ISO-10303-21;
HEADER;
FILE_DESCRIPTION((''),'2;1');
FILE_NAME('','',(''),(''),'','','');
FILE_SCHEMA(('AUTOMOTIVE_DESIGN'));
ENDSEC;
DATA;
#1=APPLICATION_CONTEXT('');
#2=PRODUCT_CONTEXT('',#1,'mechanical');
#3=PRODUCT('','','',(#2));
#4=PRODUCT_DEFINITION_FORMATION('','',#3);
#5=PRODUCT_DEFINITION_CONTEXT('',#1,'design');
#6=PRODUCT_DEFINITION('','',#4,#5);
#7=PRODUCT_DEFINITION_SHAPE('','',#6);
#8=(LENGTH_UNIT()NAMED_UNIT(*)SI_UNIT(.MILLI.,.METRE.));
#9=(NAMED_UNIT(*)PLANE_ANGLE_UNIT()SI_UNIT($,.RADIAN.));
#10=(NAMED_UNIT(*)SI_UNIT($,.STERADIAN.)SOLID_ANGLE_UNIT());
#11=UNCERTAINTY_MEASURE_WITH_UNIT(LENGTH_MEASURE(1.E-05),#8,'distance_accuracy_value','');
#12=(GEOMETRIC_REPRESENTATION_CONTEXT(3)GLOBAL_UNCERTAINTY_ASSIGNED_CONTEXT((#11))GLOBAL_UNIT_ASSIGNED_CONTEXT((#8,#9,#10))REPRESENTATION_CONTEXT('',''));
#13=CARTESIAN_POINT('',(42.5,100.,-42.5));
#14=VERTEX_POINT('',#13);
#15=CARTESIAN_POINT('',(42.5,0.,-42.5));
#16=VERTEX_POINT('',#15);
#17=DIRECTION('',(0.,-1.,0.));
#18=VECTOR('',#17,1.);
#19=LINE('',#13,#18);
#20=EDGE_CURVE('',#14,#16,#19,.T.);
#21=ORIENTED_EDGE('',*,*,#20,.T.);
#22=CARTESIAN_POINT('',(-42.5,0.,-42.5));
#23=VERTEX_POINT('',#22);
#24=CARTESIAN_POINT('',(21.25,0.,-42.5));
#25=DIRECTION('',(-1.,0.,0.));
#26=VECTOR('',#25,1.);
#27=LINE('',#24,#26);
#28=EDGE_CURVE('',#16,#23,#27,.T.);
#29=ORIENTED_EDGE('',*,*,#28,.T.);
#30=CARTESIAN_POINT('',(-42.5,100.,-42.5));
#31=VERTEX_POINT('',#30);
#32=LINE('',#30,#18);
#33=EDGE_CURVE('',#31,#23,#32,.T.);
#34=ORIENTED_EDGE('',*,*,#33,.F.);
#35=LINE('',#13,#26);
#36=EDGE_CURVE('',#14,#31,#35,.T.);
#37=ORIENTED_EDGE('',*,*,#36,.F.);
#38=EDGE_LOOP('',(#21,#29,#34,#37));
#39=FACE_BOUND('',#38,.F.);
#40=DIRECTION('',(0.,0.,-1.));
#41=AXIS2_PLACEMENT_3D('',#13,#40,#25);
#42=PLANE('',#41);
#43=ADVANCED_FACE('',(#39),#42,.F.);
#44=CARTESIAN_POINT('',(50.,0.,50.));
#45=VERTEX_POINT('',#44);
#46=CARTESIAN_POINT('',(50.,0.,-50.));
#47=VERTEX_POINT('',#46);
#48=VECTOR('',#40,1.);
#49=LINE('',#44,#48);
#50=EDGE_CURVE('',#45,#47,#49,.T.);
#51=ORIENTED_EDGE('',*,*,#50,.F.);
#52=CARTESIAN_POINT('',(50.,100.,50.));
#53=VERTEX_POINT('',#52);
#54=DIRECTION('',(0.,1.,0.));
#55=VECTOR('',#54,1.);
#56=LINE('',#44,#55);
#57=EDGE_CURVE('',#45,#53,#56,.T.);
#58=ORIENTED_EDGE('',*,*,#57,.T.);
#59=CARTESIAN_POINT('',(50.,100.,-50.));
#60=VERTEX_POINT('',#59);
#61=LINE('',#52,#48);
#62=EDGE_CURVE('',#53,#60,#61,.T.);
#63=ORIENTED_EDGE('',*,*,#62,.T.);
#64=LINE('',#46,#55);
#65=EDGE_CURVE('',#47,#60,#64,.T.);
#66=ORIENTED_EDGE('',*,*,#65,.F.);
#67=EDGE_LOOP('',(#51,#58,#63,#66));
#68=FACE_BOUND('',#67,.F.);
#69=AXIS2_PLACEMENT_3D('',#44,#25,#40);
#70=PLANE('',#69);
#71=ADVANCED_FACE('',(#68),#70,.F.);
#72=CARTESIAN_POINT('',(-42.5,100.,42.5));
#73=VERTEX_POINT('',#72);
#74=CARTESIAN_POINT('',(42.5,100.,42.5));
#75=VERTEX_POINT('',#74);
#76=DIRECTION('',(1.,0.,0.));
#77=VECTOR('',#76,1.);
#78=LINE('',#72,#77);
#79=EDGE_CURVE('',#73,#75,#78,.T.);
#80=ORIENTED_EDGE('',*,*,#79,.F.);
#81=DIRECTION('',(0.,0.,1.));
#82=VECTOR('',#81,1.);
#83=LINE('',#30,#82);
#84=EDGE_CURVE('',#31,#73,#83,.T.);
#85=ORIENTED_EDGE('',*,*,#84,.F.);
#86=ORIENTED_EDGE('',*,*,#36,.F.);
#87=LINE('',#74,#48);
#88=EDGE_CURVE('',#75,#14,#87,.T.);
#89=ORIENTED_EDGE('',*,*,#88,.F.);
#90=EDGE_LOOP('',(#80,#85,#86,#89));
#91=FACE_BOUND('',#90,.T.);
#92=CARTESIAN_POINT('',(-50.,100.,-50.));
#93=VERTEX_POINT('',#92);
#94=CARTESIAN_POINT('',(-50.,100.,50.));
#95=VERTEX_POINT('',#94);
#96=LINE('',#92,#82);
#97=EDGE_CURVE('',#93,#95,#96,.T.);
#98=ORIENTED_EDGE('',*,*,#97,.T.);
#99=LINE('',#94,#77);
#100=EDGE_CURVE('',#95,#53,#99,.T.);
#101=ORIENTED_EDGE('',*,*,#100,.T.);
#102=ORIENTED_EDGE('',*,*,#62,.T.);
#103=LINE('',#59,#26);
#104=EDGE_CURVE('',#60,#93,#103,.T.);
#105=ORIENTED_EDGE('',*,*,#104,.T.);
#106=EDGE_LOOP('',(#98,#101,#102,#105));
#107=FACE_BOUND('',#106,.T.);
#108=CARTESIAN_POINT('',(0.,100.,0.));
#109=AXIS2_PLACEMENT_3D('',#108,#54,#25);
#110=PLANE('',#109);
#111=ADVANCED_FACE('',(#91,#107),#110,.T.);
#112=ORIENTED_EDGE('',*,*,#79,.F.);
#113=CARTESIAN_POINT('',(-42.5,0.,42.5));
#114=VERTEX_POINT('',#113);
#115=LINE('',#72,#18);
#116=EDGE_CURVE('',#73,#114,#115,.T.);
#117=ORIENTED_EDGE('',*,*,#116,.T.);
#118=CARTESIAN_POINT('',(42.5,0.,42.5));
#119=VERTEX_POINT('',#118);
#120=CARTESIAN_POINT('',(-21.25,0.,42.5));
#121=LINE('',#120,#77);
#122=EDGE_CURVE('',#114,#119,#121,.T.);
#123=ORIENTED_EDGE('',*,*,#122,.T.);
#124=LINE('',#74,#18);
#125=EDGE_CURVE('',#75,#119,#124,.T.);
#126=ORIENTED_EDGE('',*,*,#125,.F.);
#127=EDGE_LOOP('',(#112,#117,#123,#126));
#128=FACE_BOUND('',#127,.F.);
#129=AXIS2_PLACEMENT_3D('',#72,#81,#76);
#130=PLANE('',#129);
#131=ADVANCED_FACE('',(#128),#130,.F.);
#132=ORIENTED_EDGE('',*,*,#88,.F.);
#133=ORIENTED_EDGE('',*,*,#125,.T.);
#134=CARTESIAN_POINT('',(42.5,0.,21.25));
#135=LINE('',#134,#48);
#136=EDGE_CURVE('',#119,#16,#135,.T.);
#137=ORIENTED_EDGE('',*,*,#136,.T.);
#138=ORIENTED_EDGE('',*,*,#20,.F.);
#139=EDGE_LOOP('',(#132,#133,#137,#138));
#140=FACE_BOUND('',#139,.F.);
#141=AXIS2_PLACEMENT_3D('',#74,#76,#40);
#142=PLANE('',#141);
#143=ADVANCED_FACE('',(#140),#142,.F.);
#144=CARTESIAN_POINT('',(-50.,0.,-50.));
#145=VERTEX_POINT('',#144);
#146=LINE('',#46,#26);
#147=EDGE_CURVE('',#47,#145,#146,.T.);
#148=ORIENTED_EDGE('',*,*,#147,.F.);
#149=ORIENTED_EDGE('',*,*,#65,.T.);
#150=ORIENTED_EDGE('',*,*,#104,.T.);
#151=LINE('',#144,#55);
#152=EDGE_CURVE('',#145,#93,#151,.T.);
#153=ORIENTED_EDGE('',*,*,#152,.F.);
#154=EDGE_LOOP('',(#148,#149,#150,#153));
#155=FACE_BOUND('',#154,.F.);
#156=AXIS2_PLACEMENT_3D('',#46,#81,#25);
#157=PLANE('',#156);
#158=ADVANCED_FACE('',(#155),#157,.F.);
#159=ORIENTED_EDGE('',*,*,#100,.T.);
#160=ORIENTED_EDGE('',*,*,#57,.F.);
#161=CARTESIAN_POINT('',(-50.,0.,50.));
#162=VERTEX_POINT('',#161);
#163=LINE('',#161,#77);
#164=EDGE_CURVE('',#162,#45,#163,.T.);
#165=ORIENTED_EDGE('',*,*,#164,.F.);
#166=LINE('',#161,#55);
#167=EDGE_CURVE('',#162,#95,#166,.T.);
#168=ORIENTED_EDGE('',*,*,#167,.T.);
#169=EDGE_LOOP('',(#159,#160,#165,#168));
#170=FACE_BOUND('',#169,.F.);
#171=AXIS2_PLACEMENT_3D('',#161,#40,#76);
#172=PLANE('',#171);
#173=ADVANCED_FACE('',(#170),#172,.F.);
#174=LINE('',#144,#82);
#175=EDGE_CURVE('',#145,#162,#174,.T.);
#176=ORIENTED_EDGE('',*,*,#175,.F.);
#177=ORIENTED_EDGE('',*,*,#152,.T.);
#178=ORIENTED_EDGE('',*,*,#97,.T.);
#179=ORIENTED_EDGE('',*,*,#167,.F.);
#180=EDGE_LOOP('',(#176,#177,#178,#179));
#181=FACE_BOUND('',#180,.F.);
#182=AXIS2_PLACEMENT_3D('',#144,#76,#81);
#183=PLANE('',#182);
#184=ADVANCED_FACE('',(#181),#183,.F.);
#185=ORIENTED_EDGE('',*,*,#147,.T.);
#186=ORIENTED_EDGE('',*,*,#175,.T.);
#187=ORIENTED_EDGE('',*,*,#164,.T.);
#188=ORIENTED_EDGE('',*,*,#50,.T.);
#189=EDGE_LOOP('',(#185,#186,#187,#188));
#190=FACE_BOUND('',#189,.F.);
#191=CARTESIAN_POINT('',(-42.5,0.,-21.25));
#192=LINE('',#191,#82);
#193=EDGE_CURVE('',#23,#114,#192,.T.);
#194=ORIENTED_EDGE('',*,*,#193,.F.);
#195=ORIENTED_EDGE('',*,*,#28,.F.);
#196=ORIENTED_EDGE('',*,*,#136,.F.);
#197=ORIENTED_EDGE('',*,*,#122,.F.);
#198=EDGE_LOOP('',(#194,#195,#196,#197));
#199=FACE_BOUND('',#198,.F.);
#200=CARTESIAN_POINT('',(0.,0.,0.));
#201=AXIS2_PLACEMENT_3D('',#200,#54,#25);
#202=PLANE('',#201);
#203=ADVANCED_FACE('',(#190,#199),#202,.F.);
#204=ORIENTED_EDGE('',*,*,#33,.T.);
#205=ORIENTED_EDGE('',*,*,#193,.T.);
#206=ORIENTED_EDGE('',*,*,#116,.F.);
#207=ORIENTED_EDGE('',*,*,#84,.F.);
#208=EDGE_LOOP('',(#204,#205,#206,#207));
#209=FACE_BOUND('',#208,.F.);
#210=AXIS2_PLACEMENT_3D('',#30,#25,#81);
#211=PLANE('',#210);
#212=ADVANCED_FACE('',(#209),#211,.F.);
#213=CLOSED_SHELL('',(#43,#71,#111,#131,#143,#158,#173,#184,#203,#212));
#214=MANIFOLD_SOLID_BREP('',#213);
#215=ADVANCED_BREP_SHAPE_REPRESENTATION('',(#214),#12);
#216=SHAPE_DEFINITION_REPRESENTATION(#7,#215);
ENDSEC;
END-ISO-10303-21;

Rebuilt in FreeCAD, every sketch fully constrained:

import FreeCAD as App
import Part
import Sketcher

V = App.Vector

doc = App.newDocument("Part")
body = doc.addObject("PartDesign::Body", "Body")

# Sketch on XZ plane
sketch1 = body.newObject("Sketcher::SketchObject", "Sketch")
sketch1.AttachmentSupport = (doc.getObject("XZ_Plane"), [""])
sketch1.MapMode = "FlatFace"
sketch1.addGeometry(Part.LineSegment(V(-50, -50, 0), V(-50, 50, 0)), False)
sketch1.addGeometry(Part.LineSegment(V(-50, 50, 0), V(50, 50, 0)), False)
sketch1.addGeometry(Part.LineSegment(V(50, 50, 0), V(50, -50, 0)), False)
sketch1.addGeometry(Part.LineSegment(V(50, -50, 0), V(-50, -50, 0)), False)
sketch1.addConstraint(Sketcher.Constraint("Coincident", 0, 2, 1, 1))
sketch1.addConstraint(Sketcher.Constraint("Coincident", 1, 2, 2, 1))
sketch1.addConstraint(Sketcher.Constraint("Coincident", 2, 2, 3, 1))
sketch1.addConstraint(Sketcher.Constraint("Coincident", 3, 2, 0, 1))
sketch1.addConstraint(Sketcher.Constraint("Vertical", 0))
sketch1.addConstraint(Sketcher.Constraint("Horizontal", 1))
sketch1.addConstraint(Sketcher.Constraint("Vertical", 2))
sketch1.addConstraint(Sketcher.Constraint("Horizontal", 3))
sketch1.addConstraint(Sketcher.Constraint("Symmetric", 0, 2, 2, 2, -1, 1))
sketch1.addConstraint(Sketcher.Constraint("Equal", 3, 0))
sketch1.addConstraint(Sketcher.Constraint("DistanceX", 1, 1, 1, 2, 100.0))
pad1 = body.newObject("PartDesign::Pad", "Pad")
pad1.Profile = sketch1
pad1.Length = 100
pad1.Reversed = True

# Sketch on XZ plane
sketch2 = body.newObject("Sketcher::SketchObject", "Sketch001")
sketch2.AttachmentSupport = (doc.getObject("XZ_Plane"), [""])
sketch2.MapMode = "FlatFace"
sketch2.AttachmentOffset = App.Placement(V(0, 0, -100), App.Rotation())
sketch2.addGeometry(Part.LineSegment(V(-42, -42, 0), V(-42, 42, 0)), False)
sketch2.addGeometry(Part.LineSegment(V(-42, 42, 0), V(42, 42, 0)), False)
sketch2.addGeometry(Part.LineSegment(V(42, 42, 0), V(42, -42, 0)), False)
sketch2.addGeometry(Part.LineSegment(V(42, -42, 0), V(-42, -42, 0)), False)
sketch2.addConstraint(Sketcher.Constraint("Coincident", 0, 2, 1, 1))
sketch2.addConstraint(Sketcher.Constraint("Coincident", 1, 2, 2, 1))
sketch2.addConstraint(Sketcher.Constraint("Coincident", 2, 2, 3, 1))
sketch2.addConstraint(Sketcher.Constraint("Coincident", 3, 2, 0, 1))
sketch2.addConstraint(Sketcher.Constraint("Vertical", 0))
sketch2.addConstraint(Sketcher.Constraint("Horizontal", 1))
sketch2.addConstraint(Sketcher.Constraint("Vertical", 2))
sketch2.addConstraint(Sketcher.Constraint("Horizontal", 3))
sketch2.addConstraint(Sketcher.Constraint("Symmetric", 0, 2, 2, 2, -1, 1))
sketch2.addConstraint(Sketcher.Constraint("Equal", 3, 0))
sketch2.addConstraint(Sketcher.Constraint("DistanceX", 1, 1, 1, 2, 85.0))
pocket1 = body.newObject("PartDesign::Pocket", "Pocket")
pocket1.Profile = sketch2
pocket1.Type = "ThroughAll"
pocket1.Reversed = True

doc.recompute()
